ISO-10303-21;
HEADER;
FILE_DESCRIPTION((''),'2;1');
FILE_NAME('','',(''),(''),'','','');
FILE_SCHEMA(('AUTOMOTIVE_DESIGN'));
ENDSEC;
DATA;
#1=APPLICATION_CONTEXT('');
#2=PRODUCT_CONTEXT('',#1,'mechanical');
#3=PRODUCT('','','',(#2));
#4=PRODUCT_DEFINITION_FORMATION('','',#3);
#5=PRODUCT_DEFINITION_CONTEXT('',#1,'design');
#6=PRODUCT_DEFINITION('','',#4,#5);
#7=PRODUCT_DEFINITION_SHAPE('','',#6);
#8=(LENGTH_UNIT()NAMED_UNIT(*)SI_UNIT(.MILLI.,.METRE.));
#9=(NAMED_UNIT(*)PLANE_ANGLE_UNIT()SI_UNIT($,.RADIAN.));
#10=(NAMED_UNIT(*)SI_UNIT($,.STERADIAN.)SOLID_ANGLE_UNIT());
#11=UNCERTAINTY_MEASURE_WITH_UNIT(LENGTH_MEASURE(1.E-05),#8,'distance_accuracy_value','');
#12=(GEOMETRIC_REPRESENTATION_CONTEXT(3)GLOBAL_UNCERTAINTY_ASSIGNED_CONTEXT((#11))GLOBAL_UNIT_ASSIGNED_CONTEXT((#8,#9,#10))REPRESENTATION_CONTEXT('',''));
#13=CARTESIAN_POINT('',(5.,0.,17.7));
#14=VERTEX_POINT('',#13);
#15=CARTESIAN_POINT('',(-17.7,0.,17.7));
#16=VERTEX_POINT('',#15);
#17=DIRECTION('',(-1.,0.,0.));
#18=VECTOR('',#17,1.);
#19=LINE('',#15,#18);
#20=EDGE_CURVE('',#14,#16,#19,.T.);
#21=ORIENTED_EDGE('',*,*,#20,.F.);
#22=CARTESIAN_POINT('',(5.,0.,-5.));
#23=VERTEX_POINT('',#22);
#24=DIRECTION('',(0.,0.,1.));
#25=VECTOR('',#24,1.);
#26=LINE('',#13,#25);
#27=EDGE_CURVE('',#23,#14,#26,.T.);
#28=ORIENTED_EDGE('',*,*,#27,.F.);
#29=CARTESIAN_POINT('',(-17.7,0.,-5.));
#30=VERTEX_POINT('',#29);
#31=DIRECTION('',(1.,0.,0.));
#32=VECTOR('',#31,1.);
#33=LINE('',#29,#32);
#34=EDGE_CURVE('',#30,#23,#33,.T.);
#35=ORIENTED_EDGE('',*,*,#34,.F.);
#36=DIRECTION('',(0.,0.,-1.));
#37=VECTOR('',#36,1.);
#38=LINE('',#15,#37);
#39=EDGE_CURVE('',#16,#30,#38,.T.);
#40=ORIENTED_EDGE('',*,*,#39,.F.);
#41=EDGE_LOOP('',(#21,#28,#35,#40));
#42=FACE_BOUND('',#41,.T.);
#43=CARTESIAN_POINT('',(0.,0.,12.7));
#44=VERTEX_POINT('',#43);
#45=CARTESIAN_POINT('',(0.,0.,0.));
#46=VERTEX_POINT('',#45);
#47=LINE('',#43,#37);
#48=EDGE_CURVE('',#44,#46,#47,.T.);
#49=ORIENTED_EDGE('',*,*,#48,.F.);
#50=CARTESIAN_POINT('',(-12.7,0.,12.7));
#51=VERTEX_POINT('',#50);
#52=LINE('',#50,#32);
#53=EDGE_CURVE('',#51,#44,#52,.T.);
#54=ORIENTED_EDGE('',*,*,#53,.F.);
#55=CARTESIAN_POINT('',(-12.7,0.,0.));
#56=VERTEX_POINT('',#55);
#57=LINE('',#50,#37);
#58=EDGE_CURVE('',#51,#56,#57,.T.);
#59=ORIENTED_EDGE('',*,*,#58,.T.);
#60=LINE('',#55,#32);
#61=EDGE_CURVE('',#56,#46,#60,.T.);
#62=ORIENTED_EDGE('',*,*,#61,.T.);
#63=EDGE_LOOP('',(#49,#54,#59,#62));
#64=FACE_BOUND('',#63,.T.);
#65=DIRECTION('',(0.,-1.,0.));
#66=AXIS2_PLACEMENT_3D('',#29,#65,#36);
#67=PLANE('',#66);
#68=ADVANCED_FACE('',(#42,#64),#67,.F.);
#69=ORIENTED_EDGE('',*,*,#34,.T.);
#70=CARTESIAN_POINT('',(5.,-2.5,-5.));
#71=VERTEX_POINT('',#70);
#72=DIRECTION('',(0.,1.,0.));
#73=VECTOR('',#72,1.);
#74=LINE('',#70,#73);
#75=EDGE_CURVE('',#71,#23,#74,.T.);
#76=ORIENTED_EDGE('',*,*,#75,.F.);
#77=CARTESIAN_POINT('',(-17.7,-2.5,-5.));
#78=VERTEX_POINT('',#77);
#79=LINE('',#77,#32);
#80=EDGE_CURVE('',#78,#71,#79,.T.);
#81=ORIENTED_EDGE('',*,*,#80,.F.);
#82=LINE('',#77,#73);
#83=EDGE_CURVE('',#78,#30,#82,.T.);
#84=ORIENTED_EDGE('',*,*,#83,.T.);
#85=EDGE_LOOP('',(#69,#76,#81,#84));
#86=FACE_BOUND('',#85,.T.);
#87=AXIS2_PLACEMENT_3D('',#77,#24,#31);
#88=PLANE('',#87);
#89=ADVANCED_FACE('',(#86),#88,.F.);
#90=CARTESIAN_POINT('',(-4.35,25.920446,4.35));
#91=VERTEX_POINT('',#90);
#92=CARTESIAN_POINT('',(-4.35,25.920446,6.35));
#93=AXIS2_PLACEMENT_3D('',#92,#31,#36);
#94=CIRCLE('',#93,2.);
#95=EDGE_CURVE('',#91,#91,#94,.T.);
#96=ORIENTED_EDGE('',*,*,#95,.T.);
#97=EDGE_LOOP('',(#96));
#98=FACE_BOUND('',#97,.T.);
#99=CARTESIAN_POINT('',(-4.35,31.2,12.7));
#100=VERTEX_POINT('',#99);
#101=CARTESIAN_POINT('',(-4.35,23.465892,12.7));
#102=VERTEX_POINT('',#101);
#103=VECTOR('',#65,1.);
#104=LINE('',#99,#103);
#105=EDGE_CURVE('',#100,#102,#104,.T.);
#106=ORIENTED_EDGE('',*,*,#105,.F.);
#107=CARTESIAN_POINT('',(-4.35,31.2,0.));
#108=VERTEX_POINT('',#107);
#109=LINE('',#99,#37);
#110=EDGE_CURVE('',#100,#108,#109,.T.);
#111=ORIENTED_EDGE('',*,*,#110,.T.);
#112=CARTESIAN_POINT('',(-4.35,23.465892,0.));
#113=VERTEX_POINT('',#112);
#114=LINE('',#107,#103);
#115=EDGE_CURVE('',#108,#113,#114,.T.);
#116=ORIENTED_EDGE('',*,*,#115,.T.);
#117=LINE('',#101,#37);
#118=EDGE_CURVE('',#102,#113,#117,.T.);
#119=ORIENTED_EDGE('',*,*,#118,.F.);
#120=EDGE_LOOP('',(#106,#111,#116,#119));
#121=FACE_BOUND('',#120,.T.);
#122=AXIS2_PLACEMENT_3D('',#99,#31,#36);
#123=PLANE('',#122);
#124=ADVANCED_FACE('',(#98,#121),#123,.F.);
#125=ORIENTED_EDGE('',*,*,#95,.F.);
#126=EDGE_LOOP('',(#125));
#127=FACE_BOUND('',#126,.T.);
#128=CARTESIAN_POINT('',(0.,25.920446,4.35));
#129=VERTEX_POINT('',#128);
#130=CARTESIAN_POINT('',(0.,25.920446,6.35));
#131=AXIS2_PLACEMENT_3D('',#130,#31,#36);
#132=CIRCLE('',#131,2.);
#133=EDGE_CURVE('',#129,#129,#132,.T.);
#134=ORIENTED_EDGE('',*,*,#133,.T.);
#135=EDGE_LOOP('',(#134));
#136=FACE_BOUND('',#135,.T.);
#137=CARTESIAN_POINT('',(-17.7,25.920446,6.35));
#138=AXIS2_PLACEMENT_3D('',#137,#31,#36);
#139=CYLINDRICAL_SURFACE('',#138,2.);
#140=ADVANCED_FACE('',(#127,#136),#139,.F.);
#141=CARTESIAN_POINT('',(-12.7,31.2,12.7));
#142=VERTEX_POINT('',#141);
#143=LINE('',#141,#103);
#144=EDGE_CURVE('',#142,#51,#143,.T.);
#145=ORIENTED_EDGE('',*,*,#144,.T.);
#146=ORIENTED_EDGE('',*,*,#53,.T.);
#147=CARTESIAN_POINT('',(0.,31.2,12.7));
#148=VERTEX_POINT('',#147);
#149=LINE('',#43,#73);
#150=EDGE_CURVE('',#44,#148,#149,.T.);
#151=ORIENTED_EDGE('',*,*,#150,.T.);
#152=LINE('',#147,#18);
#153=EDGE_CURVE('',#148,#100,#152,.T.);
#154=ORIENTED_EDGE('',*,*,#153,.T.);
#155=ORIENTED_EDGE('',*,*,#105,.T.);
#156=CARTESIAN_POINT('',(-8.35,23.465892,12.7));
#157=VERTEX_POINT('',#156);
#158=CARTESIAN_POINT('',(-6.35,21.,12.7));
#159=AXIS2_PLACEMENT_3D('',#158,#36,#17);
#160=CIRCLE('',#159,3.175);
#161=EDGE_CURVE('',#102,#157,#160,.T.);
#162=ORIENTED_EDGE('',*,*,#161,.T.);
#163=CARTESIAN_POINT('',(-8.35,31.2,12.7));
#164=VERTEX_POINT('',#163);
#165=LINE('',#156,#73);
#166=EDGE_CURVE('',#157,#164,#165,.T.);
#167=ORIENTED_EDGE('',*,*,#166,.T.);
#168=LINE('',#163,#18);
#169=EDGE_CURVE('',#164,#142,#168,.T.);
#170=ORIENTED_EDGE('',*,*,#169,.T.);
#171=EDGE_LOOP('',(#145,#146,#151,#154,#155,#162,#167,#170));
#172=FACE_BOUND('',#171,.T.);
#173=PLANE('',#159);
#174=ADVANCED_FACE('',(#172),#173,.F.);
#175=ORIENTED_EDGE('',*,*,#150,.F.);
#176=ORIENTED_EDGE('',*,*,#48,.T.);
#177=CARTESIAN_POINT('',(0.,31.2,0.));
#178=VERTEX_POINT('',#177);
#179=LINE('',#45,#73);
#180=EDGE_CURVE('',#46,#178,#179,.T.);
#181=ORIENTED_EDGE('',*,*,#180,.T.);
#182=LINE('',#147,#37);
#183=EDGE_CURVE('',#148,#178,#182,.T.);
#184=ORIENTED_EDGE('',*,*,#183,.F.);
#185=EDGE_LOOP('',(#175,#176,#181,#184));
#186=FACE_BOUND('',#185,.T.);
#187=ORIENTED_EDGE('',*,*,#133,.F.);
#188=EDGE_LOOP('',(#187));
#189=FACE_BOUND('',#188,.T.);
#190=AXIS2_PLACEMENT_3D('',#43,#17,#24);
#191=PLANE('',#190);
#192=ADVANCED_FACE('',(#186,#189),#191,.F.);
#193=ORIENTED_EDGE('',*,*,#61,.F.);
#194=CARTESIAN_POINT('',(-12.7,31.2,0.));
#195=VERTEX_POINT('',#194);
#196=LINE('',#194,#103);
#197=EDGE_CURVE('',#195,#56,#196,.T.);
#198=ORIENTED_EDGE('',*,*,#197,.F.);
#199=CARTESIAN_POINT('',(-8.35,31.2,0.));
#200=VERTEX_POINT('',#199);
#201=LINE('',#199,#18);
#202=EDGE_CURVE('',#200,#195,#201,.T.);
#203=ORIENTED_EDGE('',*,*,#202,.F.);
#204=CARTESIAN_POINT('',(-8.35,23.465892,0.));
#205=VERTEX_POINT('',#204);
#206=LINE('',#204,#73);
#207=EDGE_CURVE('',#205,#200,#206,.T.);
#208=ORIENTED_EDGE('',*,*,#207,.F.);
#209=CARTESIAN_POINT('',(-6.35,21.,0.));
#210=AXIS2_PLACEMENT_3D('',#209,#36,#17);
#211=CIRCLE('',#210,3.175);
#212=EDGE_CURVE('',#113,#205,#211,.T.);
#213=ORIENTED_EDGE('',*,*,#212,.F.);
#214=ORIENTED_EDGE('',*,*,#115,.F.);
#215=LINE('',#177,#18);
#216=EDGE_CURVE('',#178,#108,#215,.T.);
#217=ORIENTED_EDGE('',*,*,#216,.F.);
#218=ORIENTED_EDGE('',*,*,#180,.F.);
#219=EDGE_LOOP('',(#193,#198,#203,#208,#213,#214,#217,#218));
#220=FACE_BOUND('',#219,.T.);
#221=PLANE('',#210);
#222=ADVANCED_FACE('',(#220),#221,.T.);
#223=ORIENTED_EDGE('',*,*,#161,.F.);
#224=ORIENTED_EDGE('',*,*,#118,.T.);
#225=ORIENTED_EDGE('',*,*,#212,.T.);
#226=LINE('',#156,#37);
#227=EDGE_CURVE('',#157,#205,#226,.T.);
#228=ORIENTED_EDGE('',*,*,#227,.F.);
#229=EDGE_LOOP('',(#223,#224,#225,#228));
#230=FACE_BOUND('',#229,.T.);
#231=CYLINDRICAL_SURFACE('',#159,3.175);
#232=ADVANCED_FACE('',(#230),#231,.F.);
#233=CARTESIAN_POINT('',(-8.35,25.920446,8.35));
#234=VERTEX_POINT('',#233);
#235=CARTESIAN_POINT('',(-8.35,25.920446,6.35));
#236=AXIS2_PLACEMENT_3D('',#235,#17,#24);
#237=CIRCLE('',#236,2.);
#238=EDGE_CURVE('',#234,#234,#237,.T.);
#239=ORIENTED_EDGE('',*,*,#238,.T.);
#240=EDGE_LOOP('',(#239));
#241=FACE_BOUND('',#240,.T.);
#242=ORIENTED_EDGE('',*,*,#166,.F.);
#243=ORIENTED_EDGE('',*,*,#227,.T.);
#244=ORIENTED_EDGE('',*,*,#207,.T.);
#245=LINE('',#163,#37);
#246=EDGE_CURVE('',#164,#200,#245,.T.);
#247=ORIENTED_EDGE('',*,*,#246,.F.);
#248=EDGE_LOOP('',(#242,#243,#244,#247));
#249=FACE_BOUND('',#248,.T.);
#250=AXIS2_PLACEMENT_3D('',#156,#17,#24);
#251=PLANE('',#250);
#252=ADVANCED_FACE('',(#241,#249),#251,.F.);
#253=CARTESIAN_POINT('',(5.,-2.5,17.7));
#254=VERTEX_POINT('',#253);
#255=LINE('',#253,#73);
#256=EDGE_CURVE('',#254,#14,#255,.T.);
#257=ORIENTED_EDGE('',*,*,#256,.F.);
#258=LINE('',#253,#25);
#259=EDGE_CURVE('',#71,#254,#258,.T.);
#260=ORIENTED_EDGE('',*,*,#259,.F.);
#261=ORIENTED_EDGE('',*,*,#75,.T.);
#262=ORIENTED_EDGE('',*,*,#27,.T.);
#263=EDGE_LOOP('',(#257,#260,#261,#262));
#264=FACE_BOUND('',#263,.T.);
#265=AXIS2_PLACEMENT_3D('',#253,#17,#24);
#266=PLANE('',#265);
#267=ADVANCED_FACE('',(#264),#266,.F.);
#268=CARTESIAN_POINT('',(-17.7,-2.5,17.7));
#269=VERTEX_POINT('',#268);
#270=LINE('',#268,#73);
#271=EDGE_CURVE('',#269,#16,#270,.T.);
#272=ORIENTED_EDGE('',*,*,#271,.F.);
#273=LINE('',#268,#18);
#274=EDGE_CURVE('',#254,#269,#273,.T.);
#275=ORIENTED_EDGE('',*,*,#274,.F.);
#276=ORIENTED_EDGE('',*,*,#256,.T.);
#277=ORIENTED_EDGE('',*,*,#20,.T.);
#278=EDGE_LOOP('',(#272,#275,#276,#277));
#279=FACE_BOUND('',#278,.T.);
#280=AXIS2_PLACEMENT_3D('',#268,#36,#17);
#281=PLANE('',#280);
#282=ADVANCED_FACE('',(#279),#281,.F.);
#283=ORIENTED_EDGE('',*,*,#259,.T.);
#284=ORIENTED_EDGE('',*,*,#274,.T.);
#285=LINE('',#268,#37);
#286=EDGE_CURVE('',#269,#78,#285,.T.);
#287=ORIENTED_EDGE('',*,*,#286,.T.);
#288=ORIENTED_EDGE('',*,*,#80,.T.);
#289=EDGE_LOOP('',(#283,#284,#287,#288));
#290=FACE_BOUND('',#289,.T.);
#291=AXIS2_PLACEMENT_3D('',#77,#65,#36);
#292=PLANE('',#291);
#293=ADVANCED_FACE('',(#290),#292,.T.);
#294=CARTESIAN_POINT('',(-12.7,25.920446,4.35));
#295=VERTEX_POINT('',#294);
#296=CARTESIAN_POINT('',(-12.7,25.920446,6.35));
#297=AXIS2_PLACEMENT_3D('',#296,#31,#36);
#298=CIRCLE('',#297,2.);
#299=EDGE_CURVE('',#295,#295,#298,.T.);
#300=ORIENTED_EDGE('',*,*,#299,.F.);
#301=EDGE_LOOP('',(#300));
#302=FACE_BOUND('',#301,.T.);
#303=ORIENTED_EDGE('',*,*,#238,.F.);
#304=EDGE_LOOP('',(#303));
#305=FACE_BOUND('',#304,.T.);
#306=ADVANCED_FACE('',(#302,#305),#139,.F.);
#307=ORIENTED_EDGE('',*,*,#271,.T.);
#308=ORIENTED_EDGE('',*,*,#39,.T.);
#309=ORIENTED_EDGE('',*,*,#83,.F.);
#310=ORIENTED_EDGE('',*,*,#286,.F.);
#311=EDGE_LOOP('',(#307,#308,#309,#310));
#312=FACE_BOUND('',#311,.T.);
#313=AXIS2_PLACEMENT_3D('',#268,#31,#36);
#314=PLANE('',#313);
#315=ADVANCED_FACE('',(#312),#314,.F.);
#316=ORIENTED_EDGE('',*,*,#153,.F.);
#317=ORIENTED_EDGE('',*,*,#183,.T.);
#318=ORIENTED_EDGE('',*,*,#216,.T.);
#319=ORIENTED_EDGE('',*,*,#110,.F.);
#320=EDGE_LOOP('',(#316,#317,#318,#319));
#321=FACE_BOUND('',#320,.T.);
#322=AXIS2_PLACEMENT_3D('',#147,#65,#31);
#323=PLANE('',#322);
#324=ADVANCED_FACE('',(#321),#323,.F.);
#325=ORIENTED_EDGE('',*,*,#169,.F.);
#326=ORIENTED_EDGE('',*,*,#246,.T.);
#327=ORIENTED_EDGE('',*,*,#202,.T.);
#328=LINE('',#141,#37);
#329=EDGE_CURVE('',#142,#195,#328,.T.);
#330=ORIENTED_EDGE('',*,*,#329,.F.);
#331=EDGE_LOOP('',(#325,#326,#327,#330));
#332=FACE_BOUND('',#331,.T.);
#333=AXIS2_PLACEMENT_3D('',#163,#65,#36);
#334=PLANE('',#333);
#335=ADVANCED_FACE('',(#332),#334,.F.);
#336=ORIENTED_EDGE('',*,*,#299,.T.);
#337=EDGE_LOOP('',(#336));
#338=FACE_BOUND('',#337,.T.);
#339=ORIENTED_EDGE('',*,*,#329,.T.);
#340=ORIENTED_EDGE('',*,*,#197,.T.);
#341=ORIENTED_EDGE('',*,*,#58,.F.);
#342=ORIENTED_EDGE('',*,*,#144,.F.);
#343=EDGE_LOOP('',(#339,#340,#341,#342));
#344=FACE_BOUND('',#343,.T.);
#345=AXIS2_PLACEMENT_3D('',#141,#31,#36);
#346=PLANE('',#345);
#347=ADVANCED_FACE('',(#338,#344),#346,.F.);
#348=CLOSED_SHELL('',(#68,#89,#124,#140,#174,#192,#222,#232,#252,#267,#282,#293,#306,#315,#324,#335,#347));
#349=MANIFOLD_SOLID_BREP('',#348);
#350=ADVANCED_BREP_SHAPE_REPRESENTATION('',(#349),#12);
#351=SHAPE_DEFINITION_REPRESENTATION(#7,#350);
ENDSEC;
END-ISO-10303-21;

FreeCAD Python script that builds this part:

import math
import FreeCAD as App
import Part
import Sketcher
from FreeCAD import Vector
Q = App.Units.Quantity

doc = App.newDocument("Part")
params = doc.addObject("Spreadsheet::Sheet", "Params")
for row, (alias, value) in enumerate([
    ("sketch1_width", "12.7 mm"),
    ("sketch1_height", "31.2 mm"),
    ("pad1_length", "12.7 mm"),
    ("sketch2_width", "22.7 mm"),
    ("pad2_length", "2.5 mm"),
    ("sketch3_diameter", "4 mm"),
], start=1):
    params.set(f"A{row}", alias)
    params.set(f"B{row}", "=" + value)
    params.setAlias(f"B{row}", alias)

body = doc.addObject("PartDesign::Body", "Body")

sketch1 = body.newObject("Sketcher::SketchObject", "Sketch")
sketch1.AttachmentSupport = (doc.getObject("XY_Plane"), [""])
sketch1.MapMode = "FlatFace"
sketch1.addGeometry([
    Part.LineSegment(Vector(0, 0, 0), Vector(0, 31.2, 0)),
    Part.LineSegment(Vector(0, 31.2, 0), Vector(-4.3, 31.2, 0)),
    Part.LineSegment(Vector(-4.3, 31.2, 0), Vector(-4.3, 23.5, 0)),
    Part.ArcOfCircle(Part.Circle(Vector(-6.3, 21, 0), Vector(0, 0, 1), 3.2), math.radians(129), math.radians(411)),
    Part.LineSegment(Vector(-8.3, 23.5, 0), Vector(-8.3, 31.2, 0)),
    Part.LineSegment(Vector(-8.3, 31.2, 0), Vector(-12.7, 31.2, 0)),
    Part.LineSegment(Vector(-12.7, 31.2, 0), Vector(-12.7, 0, 0)),
    Part.LineSegment(Vector(-12.7, 0, 0), Vector(0, 0, 0)),
], False)
sketch1.addConstraint([
    Sketcher.Constraint("Coincident", 0, 2, 1, 1),
    Sketcher.Constraint("Coincident", 1, 2, 2, 1),
    Sketcher.Constraint("Coincident", 2, 2, 3, 2),
    Sketcher.Constraint("Coincident", 3, 1, 4, 1),
    Sketcher.Constraint("Coincident", 4, 2, 5, 1),
    Sketcher.Constraint("Coincident", 5, 2, 6, 1),
    Sketcher.Constraint("Coincident", 6, 2, 7, 1),
    Sketcher.Constraint("Coincident", 7, 2, 0, 1),
    Sketcher.Constraint("Vertical", 0),
    Sketcher.Constraint("Horizontal", 1),
    Sketcher.Constraint("Vertical", 2),
    Sketcher.Constraint("Vertical", 4),
    Sketcher.Constraint("Horizontal", 5),
    Sketcher.Constraint("Vertical", 6),
    Sketcher.Constraint("Horizontal", 7),
    Sketcher.Constraint("Coincident", 7, 2, -1, 1),
    Sketcher.Constraint("Horizontal", 2, 2, 3, 1),
    Sketcher.Constraint("Horizontal", 1, 2, 4, 2),
    Sketcher.Constraint("Equal", 1, 5),
    Sketcher.Constraint("DistanceX", 7, 1, 7, 2, Q("12.7 mm")),
    Sketcher.Constraint("DistanceY", 0, 1, 0, 2, Q("31.2 mm")),
    Sketcher.Constraint("DistanceY", -1, 1, 3, 3, Q("21 mm")),
    Sketcher.Constraint("Radius", 3, Q("3.175 mm")),
    Sketcher.Constraint("DistanceX", 3, 3, 1, 2, Q("2 mm")),
])
sketch1.setExpression("Constraints[19]", "Params.sketch1_width")
sketch1.setExpression("Constraints[20]", "Params.sketch1_height")
pad1 = body.newObject("PartDesign::Pad", "Pad")
pad1.Profile = sketch1
pad1.setExpression("Length", "Params.pad1_length")

sketch2 = body.newObject("Sketcher::SketchObject", "Sketch001")
sketch2.AttachmentSupport = (doc.getObject("XZ_Plane"), [""])
sketch2.MapMode = "FlatFace"
sketch2.addGeometry([
    Part.LineSegment(Vector(-18, 18, 0), Vector(-18, -5, 0)),
    Part.LineSegment(Vector(-18, -5, 0), Vector(5, -5, 0)),
    Part.LineSegment(Vector(5, -5, 0), Vector(5, 18, 0)),
    Part.LineSegment(Vector(5, 18, 0), Vector(-18, 18, 0)),
], False)
sketch2.addConstraint([
    Sketcher.Constraint("Coincident", 0, 2, 1, 1),
    Sketcher.Constraint("Coincident", 1, 2, 2, 1),
    Sketcher.Constraint("Coincident", 2, 2, 3, 1),
    Sketcher.Constraint("Coincident", 3, 2, 0, 1),
    Sketcher.Constraint("Vertical", 0),
    Sketcher.Constraint("Horizontal", 1),
    Sketcher.Constraint("Vertical", 2),
    Sketcher.Constraint("Horizontal", 3),
    Sketcher.Constraint("Equal", 3, 0),
    Sketcher.Constraint("DistanceX", 1, 1, 1, 2, Q("22.7 mm")),
    Sketcher.Constraint("DistanceY", 0, 2, -1, 1, Q("5 mm")),
    Sketcher.Constraint("DistanceX", -1, 1, 1, 2, Q("5 mm")),
])
sketch2.setExpression("Constraints[9]", "Params.sketch2_width")
pad2 = body.newObject("PartDesign::Pad", "Pad001")
pad2.Profile = sketch2
pad2.setExpression("Length", "Params.pad2_length")

sketch3 = body.newObject("Sketcher::SketchObject", "Sketch002")
sketch3.AttachmentSupport = (doc.getObject("YZ_Plane"), [""])
sketch3.MapMode = "FlatFace"
sketch3.addGeometry(Part.Circle(Vector(25.9, 6.3, 0), Vector(0, 0, 1), 2), False)
sketch3.addConstraint([
    Sketcher.Constraint("Diameter", 0, Q("4 mm")),
    Sketcher.Constraint("DistanceY", -1, 1, 0, 3, Q("6.35 mm")),
    Sketcher.Constraint("DistanceX", -1, 1, 0, 3, Q("25.920446 mm")),
])
sketch3.setExpression("Constraints[0]", "Params.sketch3_diameter")
pocket1 = body.newObject("PartDesign::Pocket", "Pocket")
pocket1.Profile = sketch3
pocket1.Type = "ThroughAll"

doc.recompute()
